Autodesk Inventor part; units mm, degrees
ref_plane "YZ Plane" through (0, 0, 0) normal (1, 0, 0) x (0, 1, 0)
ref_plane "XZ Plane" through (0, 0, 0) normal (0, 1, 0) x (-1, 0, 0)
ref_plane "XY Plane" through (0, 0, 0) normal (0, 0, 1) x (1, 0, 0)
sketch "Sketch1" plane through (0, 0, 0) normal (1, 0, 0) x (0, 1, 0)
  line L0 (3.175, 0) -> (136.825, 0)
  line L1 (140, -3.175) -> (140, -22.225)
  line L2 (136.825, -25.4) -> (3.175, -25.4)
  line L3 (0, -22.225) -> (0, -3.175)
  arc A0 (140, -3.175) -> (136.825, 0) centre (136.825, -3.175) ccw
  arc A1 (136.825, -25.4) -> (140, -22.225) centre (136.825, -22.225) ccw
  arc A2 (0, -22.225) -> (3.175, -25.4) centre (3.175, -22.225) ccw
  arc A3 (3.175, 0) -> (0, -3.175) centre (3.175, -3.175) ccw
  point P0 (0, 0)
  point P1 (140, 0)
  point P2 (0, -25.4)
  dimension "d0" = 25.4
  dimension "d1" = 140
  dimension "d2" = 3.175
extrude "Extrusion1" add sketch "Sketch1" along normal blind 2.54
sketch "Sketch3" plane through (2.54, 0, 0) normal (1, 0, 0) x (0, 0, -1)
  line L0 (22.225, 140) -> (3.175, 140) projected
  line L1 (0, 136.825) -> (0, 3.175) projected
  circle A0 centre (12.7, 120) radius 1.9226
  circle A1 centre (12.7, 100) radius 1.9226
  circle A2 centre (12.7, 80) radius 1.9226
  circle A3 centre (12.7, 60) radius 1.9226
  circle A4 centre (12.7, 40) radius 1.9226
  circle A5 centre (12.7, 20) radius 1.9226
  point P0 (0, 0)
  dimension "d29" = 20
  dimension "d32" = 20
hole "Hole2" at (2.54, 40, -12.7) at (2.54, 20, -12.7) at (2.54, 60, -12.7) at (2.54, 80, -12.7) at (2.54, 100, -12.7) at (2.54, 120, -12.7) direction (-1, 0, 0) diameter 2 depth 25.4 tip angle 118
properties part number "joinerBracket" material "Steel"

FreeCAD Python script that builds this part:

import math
import FreeCAD as App
import Part
import Sketcher
Q = App.Units.Quantity

doc = App.newDocument("Part")
params = doc.addObject("Spreadsheet::Sheet", "Params")
for row, (alias, value) in enumerate([
    ("sketch1_radius", "0.125 in"),
    ("pad1_length", "0.1 in"),
    ("hole_diameter", "2 mm"),
    ("hole_depth", "1 in"),
], start=1):
    params.set(f"A{row}", alias)
    params.set(f"B{row}", "=" + value)
    params.setAlias(f"B{row}", alias)

body = doc.addObject("PartDesign::Body", "Body")

sketch1 = body.newObject("Sketcher::SketchObject", "Sketch")
sketch1.AttachmentSupport = (doc.getObject("YZ_Plane"), [""])
sketch1.MapMode = "FlatFace"
sketch1.addGeometry(Part.LineSegment(App.Vector(136.8, 0, 0), App.Vector(3.2, 0, 0)), False)
sketch1.addGeometry(Part.ArcOfCircle(Part.Circle(App.Vector(3.2, -3.2, 0), App.Vector(0, 0, 1), 3.2), math.radians(90), math.radians(180)), False)
sketch1.addGeometry(Part.LineSegment(App.Vector(0, -3.2, 0), App.Vector(0, -22.2, 0)), False)
sketch1.addGeometry(Part.ArcOfCircle(Part.Circle(App.Vector(3.2, -22.2, 0), App.Vector(0, 0, 1), 3.2), math.radians(180), math.radians(270)), False)
sketch1.addGeometry(Part.LineSegment(App.Vector(3.2, -25.4, 0), App.Vector(136.8, -25.4, 0)), False)
sketch1.addGeometry(Part.ArcOfCircle(Part.Circle(App.Vector(136.8, -22.2, 0), App.Vector(0, 0, 1), 3.2), math.radians(-90), math.radians(0)), False)
sketch1.addGeometry(Part.LineSegment(App.Vector(140, -22.2, 0), App.Vector(140, -3.2, 0)), False)
sketch1.addGeometry(Part.ArcOfCircle(Part.Circle(App.Vector(136.8, -3.2, 0), App.Vector(0, 0, 1), 3.2), math.radians(0), math.radians(90)), False)
sketch1.addConstraint(Sketcher.Constraint("Tangent", 0, 2, 1, 1))
sketch1.addConstraint(Sketcher.Constraint("Tangent", 1, 2, 2, 1))
sketch1.addConstraint(Sketcher.Constraint("Tangent", 2, 2, 3, 1))
sketch1.addConstraint(Sketcher.Constraint("Tangent", 3, 2, 4, 1))
sketch1.addConstraint(Sketcher.Constraint("Tangent", 4, 2, 5, 1))
sketch1.addConstraint(Sketcher.Constraint("Tangent", 5, 2, 6, 1))
sketch1.addConstraint(Sketcher.Constraint("Tangent", 6, 2, 7, 1))
sketch1.addConstraint(Sketcher.Constraint("Tangent", 7, 2, 0, 1))
sketch1.addConstraint(Sketcher.Constraint("Horizontal", 0))
sketch1.addConstraint(Sketcher.Constraint("Vertical", 2))
sketch1.addConstraint(Sketcher.Constraint("Horizontal", 4))
sketch1.addConstraint(Sketcher.Constraint("Vertical", 6))
sketch1.addConstraint(Sketcher.Constraint("Equal", 1, 3))
sketch1.addConstraint(Sketcher.Constraint("Equal", 3, 5))
sketch1.addConstraint(Sketcher.Constraint("Equal", 5, 7))
sketch1.addConstraint(Sketcher.Constraint("PointOnObject", 0, 2, -1))
sketch1.addConstraint(Sketcher.Constraint("PointOnObject", 1, 2, -2))
sketch1.addConstraint(Sketcher.Constraint("DistanceY", 3, 2, -1, 1, Q("1 in")))
sketch1.addConstraint(Sketcher.Constraint("Radius", 1, Q("0.125 in")))
sketch1.addConstraint(Sketcher.Constraint("DistanceX", -1, 1, 5, 2, Q("5.5118 in")))
sketch1.setExpression("Constraints[18]", "Params.sketch1_radius")
pad1 = body.newObject("PartDesign::Pad", "Pad")
pad1.Profile = sketch1
pad1.setExpression("Length", "Params.pad1_length")

sketch2 = body.newObject("Sketcher::SketchObject", "Sketch001")
sketch2.AttachmentSupport = (doc.getObject("YZ_Plane"), [""])
sketch2.MapMode = "FlatFace"
sketch2.AttachmentOffset = App.Placement(App.Vector(0, 0, 0.1 * 25.4), App.Rotation())
sketch2.addGeometry(Part.Circle(App.Vector(40, -12.7, 0), App.Vector(0, 0, 1), 1), False)
sketch2.addGeometry(Part.Circle(App.Vector(20, -12.7, 0), App.Vector(0, 0, 1), 1), False)
sketch2.addGeometry(Part.Circle(App.Vector(60, -12.7, 0), App.Vector(0, 0, 1), 1), False)
sketch2.addGeometry(Part.Circle(App.Vector(80, -12.7, 0), App.Vector(0, 0, 1), 1), False)
sketch2.addGeometry(Part.Circle(App.Vector(100, -12.7, 0), App.Vector(0, 0, 1), 1), False)
sketch2.addGeometry(Part.Circle(App.Vector(120, -12.7, 0), App.Vector(0, 0, 1), 1), False)
sketch2.addConstraint(Sketcher.Constraint("Equal", 0, 1))
sketch2.addConstraint(Sketcher.Constraint("Equal", 1, 2))
sketch2.addConstraint(Sketcher.Constraint("Equal", 2, 3))
sketch2.addConstraint(Sketcher.Constraint("Equal", 3, 4))
sketch2.addConstraint(Sketcher.Constraint("Equal", 4, 5))
sketch2.addConstraint(Sketcher.Constraint("Horizontal", 0, 3, 1, 3))
sketch2.addConstraint(Sketcher.Constraint("Horizontal", 1, 3, 2, 3))
sketch2.addConstraint(Sketcher.Constraint("Horizontal", 2, 3, 3, 3))
sketch2.addConstraint(Sketcher.Constraint("Horizontal", 3, 3, 4, 3))
sketch2.addConstraint(Sketcher.Constraint("Horizontal", 4, 3, 5, 3))
sketch2.addConstraint(Sketcher.Constraint("DistanceY", 0, 3, -1, 1, Q("0.5 in")))
sketch2.addConstraint(Sketcher.Constraint("Diameter", 0, 2.0))
sketch2.addConstraint(Sketcher.Constraint("DistanceX", -1, 1, 4, 3, Q("3.937 in")))
sketch2.addConstraint(Sketcher.Constraint("DistanceX", 1, 3, 5, 3, Q("3.937 in")))
sketch2.addConstraint(Sketcher.Constraint("DistanceX", -1, 1, 0, 3, Q("1.5748 in")))
sketch2.addConstraint(Sketcher.Constraint("DistanceX", -1, 1, 1, 3, Q("0.7874 in")))
sketch2.addConstraint(Sketcher.Constraint("DistanceX", -1, 1, 2, 3, Q("2.3622 in")))
sketch2.addConstraint(Sketcher.Constraint("DistanceX", -1, 1, 3, 3, Q("3.1496 in")))
doc.recompute()
hole = body.newObject("PartDesign::Hole", "Hole")
hole.Profile = sketch2
hole.ThreadType = "None"
hole.setExpression("Diameter", "Params.hole_diameter")
hole.DepthType = "Dimension"
hole.setExpression("Depth", "Params.hole_depth")
hole.DrillPoint = "Angled"
hole.DrillPointAngle = 118

doc.recompute()
